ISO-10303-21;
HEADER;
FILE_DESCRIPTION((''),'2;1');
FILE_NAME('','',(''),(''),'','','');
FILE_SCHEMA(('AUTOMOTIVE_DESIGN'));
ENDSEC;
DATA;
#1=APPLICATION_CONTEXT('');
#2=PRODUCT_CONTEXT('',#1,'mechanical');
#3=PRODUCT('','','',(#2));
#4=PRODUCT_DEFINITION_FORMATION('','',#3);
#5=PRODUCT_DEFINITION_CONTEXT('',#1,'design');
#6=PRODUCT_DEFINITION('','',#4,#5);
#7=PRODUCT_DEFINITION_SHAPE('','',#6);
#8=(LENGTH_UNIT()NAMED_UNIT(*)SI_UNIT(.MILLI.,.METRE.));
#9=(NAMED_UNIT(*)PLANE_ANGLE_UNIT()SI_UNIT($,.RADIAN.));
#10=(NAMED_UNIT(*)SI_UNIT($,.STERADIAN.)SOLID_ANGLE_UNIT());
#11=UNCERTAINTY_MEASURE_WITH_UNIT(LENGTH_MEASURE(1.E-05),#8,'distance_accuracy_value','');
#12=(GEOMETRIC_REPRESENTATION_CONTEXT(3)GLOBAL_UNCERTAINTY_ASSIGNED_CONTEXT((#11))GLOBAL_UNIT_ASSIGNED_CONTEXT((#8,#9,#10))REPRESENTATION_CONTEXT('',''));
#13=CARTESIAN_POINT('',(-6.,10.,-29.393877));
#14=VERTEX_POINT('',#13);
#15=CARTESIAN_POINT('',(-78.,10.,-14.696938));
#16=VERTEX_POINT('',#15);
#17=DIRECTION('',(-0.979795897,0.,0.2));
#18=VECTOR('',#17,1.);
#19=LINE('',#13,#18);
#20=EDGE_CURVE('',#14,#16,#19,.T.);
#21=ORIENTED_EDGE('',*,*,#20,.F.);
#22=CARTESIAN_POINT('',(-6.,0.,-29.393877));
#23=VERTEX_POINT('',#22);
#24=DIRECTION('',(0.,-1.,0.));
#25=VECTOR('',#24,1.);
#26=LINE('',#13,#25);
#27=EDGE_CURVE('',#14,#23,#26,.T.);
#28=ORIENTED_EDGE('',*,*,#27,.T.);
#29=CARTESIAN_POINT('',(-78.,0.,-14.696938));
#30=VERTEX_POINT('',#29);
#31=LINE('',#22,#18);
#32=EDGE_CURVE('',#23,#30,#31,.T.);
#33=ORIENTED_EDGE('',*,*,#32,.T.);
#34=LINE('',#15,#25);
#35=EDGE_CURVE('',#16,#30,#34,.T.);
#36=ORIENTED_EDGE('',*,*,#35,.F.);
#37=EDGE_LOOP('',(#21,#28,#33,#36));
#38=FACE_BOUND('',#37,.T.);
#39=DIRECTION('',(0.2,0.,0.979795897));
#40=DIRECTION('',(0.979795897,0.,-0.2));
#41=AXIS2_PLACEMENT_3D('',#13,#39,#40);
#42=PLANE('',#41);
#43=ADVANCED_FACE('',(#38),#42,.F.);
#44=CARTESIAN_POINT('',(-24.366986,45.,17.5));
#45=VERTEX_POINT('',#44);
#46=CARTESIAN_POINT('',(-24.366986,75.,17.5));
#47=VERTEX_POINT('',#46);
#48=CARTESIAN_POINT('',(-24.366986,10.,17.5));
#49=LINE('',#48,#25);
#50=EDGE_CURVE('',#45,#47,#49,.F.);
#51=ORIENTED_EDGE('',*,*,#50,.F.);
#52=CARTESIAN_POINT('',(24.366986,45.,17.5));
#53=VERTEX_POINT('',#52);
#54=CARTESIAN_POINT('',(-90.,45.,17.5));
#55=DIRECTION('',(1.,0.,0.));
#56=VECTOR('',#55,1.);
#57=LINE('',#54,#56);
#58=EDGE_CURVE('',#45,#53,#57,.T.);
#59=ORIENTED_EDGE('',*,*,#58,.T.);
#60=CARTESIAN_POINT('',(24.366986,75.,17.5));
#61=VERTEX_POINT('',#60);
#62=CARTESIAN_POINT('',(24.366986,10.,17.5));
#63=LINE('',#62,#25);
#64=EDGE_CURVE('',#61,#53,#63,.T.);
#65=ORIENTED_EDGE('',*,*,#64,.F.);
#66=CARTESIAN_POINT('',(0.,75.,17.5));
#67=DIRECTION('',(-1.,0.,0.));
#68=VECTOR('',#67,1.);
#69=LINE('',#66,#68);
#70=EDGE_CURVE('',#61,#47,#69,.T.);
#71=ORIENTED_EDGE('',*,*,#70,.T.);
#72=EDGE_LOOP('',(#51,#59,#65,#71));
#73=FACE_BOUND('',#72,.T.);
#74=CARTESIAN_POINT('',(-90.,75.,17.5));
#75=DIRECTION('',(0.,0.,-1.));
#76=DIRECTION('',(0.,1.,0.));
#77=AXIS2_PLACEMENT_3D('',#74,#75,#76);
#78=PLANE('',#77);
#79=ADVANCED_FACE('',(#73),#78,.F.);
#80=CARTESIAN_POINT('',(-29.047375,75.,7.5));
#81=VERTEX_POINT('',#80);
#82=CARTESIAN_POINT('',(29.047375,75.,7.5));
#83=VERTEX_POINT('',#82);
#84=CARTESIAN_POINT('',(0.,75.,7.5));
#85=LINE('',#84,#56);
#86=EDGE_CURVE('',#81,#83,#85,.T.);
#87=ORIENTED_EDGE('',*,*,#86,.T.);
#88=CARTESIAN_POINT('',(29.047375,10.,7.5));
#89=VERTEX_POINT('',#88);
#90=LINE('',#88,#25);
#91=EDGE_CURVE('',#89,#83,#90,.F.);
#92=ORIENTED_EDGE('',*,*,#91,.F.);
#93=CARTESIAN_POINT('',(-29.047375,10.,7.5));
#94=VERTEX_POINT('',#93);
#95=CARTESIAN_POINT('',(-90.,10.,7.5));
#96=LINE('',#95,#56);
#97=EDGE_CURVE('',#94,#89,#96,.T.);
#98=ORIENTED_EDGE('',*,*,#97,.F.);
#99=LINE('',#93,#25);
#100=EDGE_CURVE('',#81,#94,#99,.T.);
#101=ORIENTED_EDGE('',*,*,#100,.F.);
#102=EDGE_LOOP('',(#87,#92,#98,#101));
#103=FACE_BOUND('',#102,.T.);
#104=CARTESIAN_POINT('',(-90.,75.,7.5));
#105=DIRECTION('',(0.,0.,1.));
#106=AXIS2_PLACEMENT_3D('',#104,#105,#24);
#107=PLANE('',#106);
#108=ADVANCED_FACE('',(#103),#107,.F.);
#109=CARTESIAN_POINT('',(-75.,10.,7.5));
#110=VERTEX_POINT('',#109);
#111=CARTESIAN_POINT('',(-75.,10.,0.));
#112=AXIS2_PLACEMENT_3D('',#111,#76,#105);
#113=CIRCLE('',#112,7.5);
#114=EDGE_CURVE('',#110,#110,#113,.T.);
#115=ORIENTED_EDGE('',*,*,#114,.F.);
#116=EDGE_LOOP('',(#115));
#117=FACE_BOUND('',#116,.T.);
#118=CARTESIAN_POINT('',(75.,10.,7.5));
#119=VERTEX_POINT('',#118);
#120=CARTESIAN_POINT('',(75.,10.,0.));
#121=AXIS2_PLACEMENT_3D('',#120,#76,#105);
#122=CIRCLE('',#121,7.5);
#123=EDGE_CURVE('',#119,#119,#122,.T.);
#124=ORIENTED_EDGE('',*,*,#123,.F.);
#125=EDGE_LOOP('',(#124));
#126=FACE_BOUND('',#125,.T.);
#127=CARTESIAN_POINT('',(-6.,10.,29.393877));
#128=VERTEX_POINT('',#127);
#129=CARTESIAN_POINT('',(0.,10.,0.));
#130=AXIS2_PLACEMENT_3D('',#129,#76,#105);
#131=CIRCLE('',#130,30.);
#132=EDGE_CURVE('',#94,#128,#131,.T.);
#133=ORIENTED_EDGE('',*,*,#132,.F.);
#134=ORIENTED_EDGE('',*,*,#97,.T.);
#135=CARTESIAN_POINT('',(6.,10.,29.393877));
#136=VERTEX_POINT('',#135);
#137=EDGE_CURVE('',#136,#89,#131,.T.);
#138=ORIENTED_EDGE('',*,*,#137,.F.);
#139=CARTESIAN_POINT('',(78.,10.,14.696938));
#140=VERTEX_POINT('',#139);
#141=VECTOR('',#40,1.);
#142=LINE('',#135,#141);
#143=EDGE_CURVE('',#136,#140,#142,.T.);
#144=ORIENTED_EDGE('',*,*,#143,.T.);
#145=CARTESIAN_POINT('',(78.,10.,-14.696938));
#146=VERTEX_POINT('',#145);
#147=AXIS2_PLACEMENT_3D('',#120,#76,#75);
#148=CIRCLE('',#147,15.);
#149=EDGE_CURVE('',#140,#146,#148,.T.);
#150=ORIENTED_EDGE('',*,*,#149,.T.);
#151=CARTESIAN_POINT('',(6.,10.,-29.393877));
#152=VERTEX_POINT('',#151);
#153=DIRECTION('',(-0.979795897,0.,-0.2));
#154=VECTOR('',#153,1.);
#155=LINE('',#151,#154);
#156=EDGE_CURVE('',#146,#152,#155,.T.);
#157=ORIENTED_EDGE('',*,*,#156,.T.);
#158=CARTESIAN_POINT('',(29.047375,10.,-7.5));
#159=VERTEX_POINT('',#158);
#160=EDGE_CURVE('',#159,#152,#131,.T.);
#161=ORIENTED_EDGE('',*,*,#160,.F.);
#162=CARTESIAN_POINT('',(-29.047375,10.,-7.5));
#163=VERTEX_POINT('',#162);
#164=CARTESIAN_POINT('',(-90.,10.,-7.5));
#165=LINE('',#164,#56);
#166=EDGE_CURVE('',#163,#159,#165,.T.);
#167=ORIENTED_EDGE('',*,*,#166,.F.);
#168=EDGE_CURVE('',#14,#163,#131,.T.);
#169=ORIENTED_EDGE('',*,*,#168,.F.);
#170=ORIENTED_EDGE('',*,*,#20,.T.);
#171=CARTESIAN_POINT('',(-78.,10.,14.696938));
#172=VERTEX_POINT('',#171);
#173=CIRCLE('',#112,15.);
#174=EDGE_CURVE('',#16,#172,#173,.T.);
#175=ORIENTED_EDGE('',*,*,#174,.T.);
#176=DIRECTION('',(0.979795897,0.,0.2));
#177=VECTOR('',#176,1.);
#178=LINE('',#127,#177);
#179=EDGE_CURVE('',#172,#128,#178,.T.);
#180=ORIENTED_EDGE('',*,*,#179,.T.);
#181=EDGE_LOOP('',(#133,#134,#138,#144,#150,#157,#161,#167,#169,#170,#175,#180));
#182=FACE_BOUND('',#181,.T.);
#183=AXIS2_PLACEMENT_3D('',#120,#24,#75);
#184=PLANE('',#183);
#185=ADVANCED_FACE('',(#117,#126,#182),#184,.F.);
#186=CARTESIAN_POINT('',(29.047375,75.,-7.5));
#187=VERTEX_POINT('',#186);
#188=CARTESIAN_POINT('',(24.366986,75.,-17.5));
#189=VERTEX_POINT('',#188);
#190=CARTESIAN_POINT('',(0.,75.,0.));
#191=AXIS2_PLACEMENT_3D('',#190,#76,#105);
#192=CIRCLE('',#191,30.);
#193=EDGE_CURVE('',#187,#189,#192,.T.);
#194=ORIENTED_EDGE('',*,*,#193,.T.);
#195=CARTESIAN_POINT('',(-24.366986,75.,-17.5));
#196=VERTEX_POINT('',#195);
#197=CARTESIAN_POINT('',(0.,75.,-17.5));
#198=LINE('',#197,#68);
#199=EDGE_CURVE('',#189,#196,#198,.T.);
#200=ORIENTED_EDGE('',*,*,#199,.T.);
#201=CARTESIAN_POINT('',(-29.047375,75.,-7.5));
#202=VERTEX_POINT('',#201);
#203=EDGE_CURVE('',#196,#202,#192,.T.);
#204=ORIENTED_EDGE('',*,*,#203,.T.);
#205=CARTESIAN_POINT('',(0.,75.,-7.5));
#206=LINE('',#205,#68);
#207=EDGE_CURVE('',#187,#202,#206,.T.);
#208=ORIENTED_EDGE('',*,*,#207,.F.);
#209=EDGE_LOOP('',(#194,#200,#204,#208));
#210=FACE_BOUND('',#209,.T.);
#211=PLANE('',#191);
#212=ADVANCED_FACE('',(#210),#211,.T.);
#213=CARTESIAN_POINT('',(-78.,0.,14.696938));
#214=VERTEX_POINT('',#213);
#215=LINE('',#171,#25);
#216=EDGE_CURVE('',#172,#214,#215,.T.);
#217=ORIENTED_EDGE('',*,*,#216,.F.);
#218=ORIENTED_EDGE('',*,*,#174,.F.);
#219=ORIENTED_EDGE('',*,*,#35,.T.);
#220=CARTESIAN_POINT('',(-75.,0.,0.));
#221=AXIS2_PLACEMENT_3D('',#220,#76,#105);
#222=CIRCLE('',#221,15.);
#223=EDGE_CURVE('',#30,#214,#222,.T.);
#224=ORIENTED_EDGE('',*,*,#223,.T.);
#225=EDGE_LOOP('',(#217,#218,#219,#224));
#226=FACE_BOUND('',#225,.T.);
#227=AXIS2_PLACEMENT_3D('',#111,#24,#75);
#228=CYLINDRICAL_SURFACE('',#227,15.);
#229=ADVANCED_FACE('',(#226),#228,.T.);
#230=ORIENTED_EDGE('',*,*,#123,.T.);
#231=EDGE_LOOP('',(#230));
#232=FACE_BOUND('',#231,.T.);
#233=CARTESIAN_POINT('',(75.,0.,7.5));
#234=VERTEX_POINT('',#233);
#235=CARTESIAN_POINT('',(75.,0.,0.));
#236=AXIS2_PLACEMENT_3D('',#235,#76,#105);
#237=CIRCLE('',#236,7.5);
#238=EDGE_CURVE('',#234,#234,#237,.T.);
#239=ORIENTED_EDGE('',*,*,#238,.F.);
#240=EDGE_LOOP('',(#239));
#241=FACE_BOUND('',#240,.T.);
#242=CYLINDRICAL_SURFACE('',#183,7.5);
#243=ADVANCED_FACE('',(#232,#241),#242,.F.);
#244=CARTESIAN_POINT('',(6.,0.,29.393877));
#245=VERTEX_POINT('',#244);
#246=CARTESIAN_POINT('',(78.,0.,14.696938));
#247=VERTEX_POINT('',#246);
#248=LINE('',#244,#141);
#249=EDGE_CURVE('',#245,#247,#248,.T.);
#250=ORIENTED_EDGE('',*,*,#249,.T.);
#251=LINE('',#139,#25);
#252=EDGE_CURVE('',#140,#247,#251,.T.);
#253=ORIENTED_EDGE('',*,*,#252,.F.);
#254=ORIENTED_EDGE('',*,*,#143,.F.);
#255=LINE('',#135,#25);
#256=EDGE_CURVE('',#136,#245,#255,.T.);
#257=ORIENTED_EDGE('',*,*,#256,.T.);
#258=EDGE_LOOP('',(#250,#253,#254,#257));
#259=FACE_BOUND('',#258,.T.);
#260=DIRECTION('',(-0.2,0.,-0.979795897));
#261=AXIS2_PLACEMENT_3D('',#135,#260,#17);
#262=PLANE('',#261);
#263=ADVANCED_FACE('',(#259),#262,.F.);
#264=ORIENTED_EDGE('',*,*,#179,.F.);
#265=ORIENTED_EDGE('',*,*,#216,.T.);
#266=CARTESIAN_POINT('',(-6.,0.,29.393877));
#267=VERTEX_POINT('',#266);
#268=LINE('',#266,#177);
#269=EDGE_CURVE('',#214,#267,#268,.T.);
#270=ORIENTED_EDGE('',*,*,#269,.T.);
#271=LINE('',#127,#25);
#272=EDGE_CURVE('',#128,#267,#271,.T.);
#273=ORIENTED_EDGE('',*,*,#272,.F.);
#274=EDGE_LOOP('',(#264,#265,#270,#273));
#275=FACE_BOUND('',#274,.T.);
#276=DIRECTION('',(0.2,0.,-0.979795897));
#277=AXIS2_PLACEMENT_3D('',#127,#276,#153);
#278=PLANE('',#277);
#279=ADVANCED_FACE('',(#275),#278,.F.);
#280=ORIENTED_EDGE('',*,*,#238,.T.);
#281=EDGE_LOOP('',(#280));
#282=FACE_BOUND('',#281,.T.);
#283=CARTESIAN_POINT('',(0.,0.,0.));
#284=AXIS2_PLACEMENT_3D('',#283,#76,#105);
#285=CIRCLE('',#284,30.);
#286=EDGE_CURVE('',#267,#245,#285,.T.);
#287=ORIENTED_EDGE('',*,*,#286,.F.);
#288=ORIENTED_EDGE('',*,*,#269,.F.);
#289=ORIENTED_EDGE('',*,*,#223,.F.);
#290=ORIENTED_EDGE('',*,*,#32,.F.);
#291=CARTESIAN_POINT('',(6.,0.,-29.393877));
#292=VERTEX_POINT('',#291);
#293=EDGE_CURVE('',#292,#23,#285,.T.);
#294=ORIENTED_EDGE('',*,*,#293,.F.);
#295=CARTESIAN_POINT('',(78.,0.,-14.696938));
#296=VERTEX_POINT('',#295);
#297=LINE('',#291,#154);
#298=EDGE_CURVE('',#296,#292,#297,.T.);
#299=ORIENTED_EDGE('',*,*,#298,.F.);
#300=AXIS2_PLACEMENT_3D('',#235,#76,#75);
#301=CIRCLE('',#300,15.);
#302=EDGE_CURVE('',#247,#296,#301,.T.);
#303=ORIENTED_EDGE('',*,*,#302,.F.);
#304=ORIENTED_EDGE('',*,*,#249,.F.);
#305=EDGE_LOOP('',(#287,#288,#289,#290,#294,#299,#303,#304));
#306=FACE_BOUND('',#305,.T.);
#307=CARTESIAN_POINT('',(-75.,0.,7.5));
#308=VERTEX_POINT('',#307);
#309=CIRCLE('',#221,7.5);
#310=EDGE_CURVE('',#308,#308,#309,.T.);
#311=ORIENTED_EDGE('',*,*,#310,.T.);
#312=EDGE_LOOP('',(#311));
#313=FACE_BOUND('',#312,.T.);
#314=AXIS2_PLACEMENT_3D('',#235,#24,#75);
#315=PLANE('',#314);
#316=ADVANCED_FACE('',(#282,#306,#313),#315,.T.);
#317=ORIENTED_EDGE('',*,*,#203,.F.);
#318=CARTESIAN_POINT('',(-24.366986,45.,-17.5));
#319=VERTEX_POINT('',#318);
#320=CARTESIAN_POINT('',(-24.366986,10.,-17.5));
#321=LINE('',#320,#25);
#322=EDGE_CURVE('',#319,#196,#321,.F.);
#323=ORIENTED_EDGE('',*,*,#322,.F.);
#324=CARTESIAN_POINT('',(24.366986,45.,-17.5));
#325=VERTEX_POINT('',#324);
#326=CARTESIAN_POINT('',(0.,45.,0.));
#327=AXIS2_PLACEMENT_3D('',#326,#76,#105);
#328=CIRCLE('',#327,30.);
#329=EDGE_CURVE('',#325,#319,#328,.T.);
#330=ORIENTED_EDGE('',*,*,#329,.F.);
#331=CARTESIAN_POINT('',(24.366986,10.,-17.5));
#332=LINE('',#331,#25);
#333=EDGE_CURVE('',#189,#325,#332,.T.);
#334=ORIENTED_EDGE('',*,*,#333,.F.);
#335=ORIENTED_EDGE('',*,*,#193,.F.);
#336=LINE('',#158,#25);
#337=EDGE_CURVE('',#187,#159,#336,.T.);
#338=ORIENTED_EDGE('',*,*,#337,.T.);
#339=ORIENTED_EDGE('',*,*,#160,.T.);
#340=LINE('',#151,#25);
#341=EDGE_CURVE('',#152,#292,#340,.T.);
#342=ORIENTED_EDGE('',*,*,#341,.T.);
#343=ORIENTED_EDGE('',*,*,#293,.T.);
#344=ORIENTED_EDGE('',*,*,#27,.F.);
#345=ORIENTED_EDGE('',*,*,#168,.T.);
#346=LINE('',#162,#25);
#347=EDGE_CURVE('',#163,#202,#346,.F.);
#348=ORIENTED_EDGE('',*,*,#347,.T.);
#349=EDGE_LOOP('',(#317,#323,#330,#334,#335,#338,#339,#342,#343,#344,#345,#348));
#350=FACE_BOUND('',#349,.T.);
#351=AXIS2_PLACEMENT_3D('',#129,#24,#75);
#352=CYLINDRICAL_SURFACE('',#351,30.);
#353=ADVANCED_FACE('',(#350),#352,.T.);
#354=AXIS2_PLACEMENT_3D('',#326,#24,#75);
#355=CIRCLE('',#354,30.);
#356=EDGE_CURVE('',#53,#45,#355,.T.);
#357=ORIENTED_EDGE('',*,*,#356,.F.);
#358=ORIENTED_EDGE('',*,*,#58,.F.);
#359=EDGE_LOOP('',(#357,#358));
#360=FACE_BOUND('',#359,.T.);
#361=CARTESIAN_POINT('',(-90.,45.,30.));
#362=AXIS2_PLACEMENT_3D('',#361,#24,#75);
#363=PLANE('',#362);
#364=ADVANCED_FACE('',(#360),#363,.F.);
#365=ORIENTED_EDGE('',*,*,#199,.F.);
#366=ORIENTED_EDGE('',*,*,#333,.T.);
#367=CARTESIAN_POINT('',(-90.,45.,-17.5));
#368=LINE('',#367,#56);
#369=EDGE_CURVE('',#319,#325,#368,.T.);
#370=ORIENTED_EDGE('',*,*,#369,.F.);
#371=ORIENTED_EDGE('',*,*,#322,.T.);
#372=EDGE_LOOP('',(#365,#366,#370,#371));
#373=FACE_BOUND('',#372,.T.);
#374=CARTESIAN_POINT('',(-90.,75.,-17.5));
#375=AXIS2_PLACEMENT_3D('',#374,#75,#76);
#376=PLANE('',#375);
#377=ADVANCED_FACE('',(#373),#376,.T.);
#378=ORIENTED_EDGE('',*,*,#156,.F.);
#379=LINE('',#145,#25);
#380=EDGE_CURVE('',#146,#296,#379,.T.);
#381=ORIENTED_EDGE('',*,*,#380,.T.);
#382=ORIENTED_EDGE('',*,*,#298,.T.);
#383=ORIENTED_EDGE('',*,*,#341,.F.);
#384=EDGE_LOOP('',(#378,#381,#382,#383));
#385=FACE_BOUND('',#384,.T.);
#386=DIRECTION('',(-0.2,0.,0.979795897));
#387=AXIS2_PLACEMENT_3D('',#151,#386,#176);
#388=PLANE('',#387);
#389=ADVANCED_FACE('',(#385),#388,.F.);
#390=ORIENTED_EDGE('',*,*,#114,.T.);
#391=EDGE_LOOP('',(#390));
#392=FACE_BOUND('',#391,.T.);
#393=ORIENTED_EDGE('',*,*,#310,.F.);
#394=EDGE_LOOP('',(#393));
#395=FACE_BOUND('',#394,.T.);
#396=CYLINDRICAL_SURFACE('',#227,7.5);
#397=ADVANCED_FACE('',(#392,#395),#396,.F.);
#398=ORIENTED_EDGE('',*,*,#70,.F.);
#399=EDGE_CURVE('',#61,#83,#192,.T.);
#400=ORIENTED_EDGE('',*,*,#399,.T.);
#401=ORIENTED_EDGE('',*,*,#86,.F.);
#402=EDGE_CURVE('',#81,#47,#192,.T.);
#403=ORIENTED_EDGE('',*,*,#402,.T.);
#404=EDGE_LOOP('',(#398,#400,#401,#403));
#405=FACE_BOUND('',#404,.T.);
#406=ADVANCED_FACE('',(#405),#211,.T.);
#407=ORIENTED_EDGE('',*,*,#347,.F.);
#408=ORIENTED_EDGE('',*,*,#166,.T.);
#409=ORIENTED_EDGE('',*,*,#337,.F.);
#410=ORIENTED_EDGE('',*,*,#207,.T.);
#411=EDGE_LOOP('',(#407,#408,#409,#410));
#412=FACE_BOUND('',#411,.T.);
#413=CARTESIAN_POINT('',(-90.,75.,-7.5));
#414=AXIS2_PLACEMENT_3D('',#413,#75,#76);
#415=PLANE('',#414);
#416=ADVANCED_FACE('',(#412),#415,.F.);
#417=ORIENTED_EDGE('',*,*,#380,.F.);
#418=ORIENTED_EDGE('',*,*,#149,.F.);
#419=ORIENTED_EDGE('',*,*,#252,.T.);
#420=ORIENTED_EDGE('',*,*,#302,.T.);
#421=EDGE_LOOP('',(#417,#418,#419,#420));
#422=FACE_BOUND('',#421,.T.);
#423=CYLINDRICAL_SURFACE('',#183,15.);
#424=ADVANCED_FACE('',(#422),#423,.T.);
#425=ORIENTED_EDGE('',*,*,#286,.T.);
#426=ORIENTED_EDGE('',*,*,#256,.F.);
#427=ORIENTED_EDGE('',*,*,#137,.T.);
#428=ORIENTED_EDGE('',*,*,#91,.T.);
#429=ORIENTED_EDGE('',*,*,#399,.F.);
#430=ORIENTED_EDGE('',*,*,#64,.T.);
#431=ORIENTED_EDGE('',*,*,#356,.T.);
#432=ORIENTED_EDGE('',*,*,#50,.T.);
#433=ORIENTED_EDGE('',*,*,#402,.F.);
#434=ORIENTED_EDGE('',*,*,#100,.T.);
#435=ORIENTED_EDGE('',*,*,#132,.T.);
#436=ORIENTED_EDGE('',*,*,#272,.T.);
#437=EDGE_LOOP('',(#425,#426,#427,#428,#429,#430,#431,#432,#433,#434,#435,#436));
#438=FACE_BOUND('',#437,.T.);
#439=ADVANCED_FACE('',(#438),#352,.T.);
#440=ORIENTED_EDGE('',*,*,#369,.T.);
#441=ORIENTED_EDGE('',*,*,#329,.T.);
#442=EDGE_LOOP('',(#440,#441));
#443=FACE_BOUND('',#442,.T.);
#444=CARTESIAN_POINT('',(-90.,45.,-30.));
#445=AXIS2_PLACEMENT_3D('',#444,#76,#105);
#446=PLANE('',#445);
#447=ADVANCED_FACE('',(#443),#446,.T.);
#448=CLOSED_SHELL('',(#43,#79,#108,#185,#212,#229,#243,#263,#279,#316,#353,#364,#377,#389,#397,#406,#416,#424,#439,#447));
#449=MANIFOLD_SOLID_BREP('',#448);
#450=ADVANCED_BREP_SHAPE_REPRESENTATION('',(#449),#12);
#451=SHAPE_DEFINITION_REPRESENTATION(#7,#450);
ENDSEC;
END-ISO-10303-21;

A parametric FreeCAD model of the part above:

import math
import FreeCAD as App
import Part
import Sketcher

doc = App.newDocument("Part")
body = doc.addObject("PartDesign::Body", "Body")

# Sketch on XZ plane
sketch1 = body.newObject("Sketcher::SketchObject", "Sketch")
sketch1.AttachmentSupport = (doc.getObject("XZ_Plane"), [""])
sketch1.MapMode = "FlatFace"
sketch1.addGeometry([
    Part.LineSegment(App.Vector(78, -14.696938, 0), App.Vector(6, -29.393877, 0)),  # 0
    Part.ArcOfCircle(Part.Circle(App.Vector(0, 0, 0), App.Vector(0, 0, 1), 30), math.radians(-101.536959), math.radians(-78.463041)),  # 1
    Part.LineSegment(App.Vector(-6, -29.393877, 0), App.Vector(-78, -14.696938, 0)),  # 2
    Part.ArcOfCircle(Part.Circle(App.Vector(-75, 0, 0), App.Vector(0, 0, 1), 15), math.radians(101.536959), math.radians(258.463041)),  # 3
    Part.LineSegment(App.Vector(-78, 14.696938, 0), App.Vector(-6, 29.393877, 0)),  # 4
    Part.ArcOfCircle(Part.Circle(App.Vector(0, 0, 0), App.Vector(0, 0, 1), 30), math.radians(78.463041), math.radians(101.536959)),  # 5
    Part.LineSegment(App.Vector(6, 29.393877, 0), App.Vector(78, 14.696938, 0)),  # 6
    Part.ArcOfCircle(Part.Circle(App.Vector(75, 0, 0), App.Vector(0, 0, 1), 15), math.radians(-78.463041), math.radians(78.463041)),  # 7
    Part.Circle(App.Vector(75, 0, 0), App.Vector(0, 0, 1), 7.5),  # 8
    Part.Circle(App.Vector(-75, 0, 0), App.Vector(0, 0, 1), 7.5),  # 9
], False)
sketch1.addConstraint([
    Sketcher.Constraint("Tangent", 0, 2, 1, 2),
    Sketcher.Constraint("Tangent", 1, 1, 2, 1),
    Sketcher.Constraint("Tangent", 2, 2, 3, 2),
    Sketcher.Constraint("Tangent", 3, 1, 4, 1),
    Sketcher.Constraint("Tangent", 4, 2, 5, 2),
    Sketcher.Constraint("Tangent", 5, 1, 6, 1),
    Sketcher.Constraint("Tangent", 6, 2, 7, 2),
    Sketcher.Constraint("Tangent", 7, 1, 0, 1),
    Sketcher.Constraint("Coincident", 1, 3, -1, 1),
    Sketcher.Constraint("Coincident", 5, 3, -1, 1),
    Sketcher.Constraint("Coincident", 8, 3, 7, 3),
    Sketcher.Constraint("Coincident", 9, 3, 3, 3),
    Sketcher.Constraint("Equal", 1, 5),
    Sketcher.Constraint("Equal", 3, 7),
    Sketcher.Constraint("Equal", 8, 9),
    Sketcher.Constraint("Symmetric", 3, 3, 7, 3, -1, 1),
    Sketcher.Constraint("PointOnObject", 3, 3, -1),
    Sketcher.Constraint("Diameter", 8, 15.0),
    Sketcher.Constraint("Radius", 1, 30.0),
    Sketcher.Constraint("Radius", 3, 15.0),
    Sketcher.Constraint("DistanceX", 3, 3, -1, 1, 75.0),
])
pad1 = body.newObject("PartDesign::Pad", "Pad")
pad1.Profile = sketch1
pad1.Length = 10
pad1.Reversed = True

# Sketch on XZ plane
sketch2 = body.newObject("Sketcher::SketchObject", "Sketch001")
sketch2.AttachmentSupport = (doc.getObject("XZ_Plane"), [""])
sketch2.MapMode = "FlatFace"
sketch2.AttachmentOffset = App.Placement(App.Vector(0, 0, -10), App.Rotation())
sketch2.addGeometry(Part.Circle(App.Vector(0, 0, 0), App.Vector(0, 0, 1), 30), False)
sketch2.addConstraint([
    Sketcher.Constraint("Coincident", 0, 3, -1, 1),
    Sketcher.Constraint("Diameter", 0, 60.0),
])
pad2 = body.newObject("PartDesign::Pad", "Pad001")
pad2.Profile = sketch2
pad2.Length = 65
pad2.Reversed = True

# Sketch on YZ plane
sketch3 = body.newObject("Sketcher::SketchObject", "Sketch002")
sketch3.AttachmentSupport = (doc.getObject("YZ_Plane"), [""])
sketch3.MapMode = "FlatFace"
sketch3.addGeometry([
    Part.LineSegment(App.Vector(75, 7.5, 0), App.Vector(10, 7.5, 0)),
    Part.LineSegment(App.Vector(10, 7.5, 0), App.Vector(10, -7.5, 0)),
    Part.LineSegment(App.Vector(10, -7.5, 0), App.Vector(75, -7.5, 0)),
    Part.LineSegment(App.Vector(75, -7.5, 0), App.Vector(75, 7.5, 0)),
], False)
sketch3.addConstraint([
    Sketcher.Constraint("Coincident", 0, 2, 1, 1),
    Sketcher.Constraint("Coincident", 1, 2, 2, 1),
    Sketcher.Constraint("Coincident", 2, 2, 3, 1),
    Sketcher.Constraint("Coincident", 3, 2, 0, 1),
    Sketcher.Constraint("Horizontal", 0),
    Sketcher.Constraint("Vertical", 1),
    Sketcher.Constraint("Horizontal", 2),
    Sketcher.Constraint("Vertical", 3),
    Sketcher.Constraint("DistanceX", 0, 2, 0, 1, 65.0),
    Sketcher.Constraint("DistanceY", 1, 2, 1, 1, 15.0),
    Sketcher.Constraint("DistanceX", -1, 1, 0, 2, 10.0),
    Sketcher.Constraint("DistanceY", -1, 1, 0, 2, 7.5),
])
pocket1 = body.newObject("PartDesign::Pocket", "Pocket")
pocket1.Profile = sketch3
pocket1.Type = "ThroughAll"
pocket1.Midplane = True

# Sketch on YZ plane
sketch4 = body.newObject("Sketcher::SketchObject", "Sketch003")
sketch4.AttachmentSupport = (doc.getObject("YZ_Plane"), [""])
sketch4.MapMode = "FlatFace"
sketch4.addGeometry([
    Part.LineSegment(App.Vector(75, 30, 0), App.Vector(45, 30, 0)),
    Part.LineSegment(App.Vector(45, 30, 0), App.Vector(45, 17.5, 0)),
    Part.LineSegment(App.Vector(45, 17.5, 0), App.Vector(75, 17.5, 0)),
    Part.LineSegment(App.Vector(75, 17.5, 0), App.Vector(75, 30, 0)),
], False)
sketch4.addConstraint([
    Sketcher.Constraint("Coincident", 0, 2, 1, 1),
    Sketcher.Constraint("Coincident", 1, 2, 2, 1),
    Sketcher.Constraint("Coincident", 2, 2, 3, 1),
    Sketcher.Constraint("Coincident", 3, 2, 0, 1),
    Sketcher.Constraint("Horizontal", 0),
    Sketcher.Constraint("Vertical", 1),
    Sketcher.Constraint("Horizontal", 2),
    Sketcher.Constraint("Vertical", 3),
    Sketcher.Constraint("DistanceX", 0, 2, 0, 1, 30.0),
    Sketcher.Constraint("DistanceY", 1, 2, 1, 1, 12.5),
    Sketcher.Constraint("DistanceX", -1, 1, 0, 2, 45.0),
    Sketcher.Constraint("DistanceY", -1, 1, 0, 2, 30.0),
])
pocket2 = body.newObject("PartDesign::Pocket", "Pocket001")
pocket2.Profile = sketch4
pocket2.Length = 243.867732
pocket2.Midplane = True
doc.recompute()

mirrored = body.newObject("PartDesign::Mirrored", "Mirrored")
mirrored.Originals = [pocket2]
mirrored.MirrorPlane = (doc.getObject("XY_Plane"), [""])
body.Tip = mirrored

doc.recompute()
